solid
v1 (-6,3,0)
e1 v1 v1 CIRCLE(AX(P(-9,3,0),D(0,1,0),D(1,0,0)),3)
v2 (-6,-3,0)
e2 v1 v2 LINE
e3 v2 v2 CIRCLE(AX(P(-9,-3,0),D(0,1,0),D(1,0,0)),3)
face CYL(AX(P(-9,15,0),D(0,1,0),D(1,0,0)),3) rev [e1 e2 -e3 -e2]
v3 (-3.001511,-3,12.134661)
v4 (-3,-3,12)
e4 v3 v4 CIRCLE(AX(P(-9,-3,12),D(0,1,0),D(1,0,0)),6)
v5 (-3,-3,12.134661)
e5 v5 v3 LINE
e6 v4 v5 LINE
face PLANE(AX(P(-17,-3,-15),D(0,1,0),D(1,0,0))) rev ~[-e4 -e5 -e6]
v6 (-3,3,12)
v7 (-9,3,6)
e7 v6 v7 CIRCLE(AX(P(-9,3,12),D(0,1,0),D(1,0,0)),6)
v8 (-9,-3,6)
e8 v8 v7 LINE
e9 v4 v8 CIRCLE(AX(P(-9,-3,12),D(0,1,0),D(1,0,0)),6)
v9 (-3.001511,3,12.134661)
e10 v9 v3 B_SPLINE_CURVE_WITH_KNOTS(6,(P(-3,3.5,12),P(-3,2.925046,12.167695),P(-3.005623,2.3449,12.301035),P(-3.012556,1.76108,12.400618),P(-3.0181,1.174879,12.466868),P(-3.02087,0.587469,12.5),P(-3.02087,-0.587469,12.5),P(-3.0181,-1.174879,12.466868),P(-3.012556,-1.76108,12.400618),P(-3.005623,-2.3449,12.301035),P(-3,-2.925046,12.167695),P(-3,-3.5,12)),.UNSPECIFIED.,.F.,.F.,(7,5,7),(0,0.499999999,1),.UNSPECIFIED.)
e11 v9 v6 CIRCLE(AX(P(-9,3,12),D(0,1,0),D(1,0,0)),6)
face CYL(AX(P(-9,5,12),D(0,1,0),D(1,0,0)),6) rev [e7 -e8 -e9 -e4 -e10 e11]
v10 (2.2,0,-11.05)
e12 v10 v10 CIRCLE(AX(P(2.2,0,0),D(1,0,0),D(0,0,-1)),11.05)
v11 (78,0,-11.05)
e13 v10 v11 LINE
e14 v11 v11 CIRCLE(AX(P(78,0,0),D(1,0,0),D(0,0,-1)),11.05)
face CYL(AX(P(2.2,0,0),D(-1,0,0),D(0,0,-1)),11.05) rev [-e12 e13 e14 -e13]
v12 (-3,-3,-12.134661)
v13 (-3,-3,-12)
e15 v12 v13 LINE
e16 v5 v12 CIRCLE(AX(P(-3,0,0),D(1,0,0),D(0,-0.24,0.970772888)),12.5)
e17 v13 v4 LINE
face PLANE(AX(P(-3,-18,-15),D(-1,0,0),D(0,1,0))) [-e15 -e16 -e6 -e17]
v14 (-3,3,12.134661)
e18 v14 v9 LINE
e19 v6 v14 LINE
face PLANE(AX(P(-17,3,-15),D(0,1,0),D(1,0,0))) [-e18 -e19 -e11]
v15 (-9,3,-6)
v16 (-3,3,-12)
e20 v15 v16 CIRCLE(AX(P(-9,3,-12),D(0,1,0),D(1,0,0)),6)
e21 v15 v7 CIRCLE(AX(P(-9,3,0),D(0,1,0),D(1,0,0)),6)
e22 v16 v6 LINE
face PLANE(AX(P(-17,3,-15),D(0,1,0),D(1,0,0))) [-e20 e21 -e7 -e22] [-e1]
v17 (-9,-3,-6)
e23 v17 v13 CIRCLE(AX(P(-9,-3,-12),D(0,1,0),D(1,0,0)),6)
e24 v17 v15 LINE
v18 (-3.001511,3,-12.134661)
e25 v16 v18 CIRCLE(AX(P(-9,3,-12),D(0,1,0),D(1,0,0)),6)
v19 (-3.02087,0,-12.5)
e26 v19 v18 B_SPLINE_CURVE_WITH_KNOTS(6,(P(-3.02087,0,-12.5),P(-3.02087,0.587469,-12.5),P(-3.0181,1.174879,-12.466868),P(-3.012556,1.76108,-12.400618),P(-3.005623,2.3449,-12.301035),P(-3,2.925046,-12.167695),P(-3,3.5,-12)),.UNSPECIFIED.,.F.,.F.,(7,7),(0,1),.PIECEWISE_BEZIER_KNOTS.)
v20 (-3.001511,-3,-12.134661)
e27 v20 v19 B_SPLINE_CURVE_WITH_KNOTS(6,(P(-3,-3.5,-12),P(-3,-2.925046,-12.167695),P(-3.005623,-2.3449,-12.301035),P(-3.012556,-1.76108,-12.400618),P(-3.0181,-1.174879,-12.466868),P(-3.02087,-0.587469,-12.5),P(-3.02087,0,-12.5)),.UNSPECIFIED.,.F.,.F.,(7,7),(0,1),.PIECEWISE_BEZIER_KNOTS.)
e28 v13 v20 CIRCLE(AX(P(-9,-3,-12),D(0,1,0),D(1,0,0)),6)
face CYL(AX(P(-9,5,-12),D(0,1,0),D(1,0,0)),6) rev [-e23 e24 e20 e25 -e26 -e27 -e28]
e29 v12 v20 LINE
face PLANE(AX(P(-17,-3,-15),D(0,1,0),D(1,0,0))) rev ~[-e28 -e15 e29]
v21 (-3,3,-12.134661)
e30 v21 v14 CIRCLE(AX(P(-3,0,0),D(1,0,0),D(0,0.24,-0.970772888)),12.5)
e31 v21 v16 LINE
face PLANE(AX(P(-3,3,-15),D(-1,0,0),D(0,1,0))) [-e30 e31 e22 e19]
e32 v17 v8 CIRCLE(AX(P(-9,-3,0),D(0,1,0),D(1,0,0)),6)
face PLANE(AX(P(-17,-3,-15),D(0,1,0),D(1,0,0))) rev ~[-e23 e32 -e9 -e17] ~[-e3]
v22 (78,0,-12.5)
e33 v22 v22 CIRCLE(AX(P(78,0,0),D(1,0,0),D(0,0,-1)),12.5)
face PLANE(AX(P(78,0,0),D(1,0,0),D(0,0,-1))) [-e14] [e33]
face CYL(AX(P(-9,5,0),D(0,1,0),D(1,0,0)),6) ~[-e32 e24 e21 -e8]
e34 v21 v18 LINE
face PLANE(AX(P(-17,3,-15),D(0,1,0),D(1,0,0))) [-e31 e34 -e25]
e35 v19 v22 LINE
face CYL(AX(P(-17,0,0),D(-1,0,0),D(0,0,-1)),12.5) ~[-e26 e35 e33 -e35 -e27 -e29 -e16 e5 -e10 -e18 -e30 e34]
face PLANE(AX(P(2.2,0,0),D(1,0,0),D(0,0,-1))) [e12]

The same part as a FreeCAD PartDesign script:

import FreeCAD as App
import Part
import Sketcher
from FreeCAD import Vector

doc = App.newDocument("Part")
body = doc.addObject("PartDesign::Body", "Body")

# Sketch on XY plane
sketch1 = doc.addObject("Sketcher::SketchObject", "Sketch")
body.addObject(sketch1)
sketch1.AttachmentSupport = (doc.XY_Plane, [""])
sketch1.MapMode = "FlatFace"
sketch1.addGeometry(Part.Circle(Vector(0, 0, 0), Vector(0, 0, 1), 6), False)
sketch1.addConstraint([
    Sketcher.Constraint("Coincident", 0, 3, -1, 1),
    Sketcher.Constraint("Diameter", 0, 12.0),
])
pad1 = doc.addObject("PartDesign::Pad", "Pad")
body.addObject(pad1)
pad1.Profile = sketch1
pad1.Length = 10
body2 = doc.addObject("PartDesign::Body", "Body001")
doc.recompute()

body.Placement = App.Placement(Vector(0, 0, 0), App.Rotation(Vector(1, 0, 0), 90))
boolean = doc.addObject("PartDesign::Boolean", "Boolean")
body2.addObject(boolean)
boolean.Type = "Fuse"
boolean.addObjects([body])
body3 = doc.addObject("PartDesign::Body", "Body002")
doc.recompute()

body2.Placement = App.Placement(Vector(-9, 5, -12), App.Rotation(Vector(0, 0, 1), 0))
boolean2 = doc.addObject("PartDesign::Boolean", "Boolean001")
body3.addObject(boolean2)
boolean2.Type = "Fuse"
boolean2.addObjects([body2])
body4 = doc.addObject("PartDesign::Body", "Body003")

# Sketch on XY plane
sketch2 = doc.addObject("Sketcher::SketchObject", "Sketch001")
body4.addObject(sketch2)
sketch2.AttachmentSupport = (doc.getObject("XY_Plane003"), [""])
sketch2.MapMode = "FlatFace"
sketch2.addGeometry(Part.Circle(Vector(0, 0, 0), Vector(0, 0, 1), 6), False)
sketch2.addConstraint([
    Sketcher.Constraint("Coincident", 0, 3, -1, 1),
    Sketcher.Constraint("Diameter", 0, 12.0),
])
pad2 = doc.addObject("PartDesign::Pad", "Pad001")
body4.addObject(pad2)
pad2.Profile = sketch2
pad2.Length = 10
body5 = doc.addObject("PartDesign::Body", "Body004")
doc.recompute()

body4.Placement = App.Placement(Vector(0, 0, 0), App.Rotation(Vector(1, 0, 0), 90))
boolean3 = doc.addObject("PartDesign::Boolean", "Boolean002")
body5.addObject(boolean3)
boolean3.Type = "Fuse"
boolean3.addObjects([body4])
body6 = doc.addObject("PartDesign::Body", "Body005")
doc.recompute()

body5.Placement = App.Placement(Vector(-9, 5, 0), App.Rotation(Vector(0, 0, 1), 0))
boolean4 = doc.addObject("PartDesign::Boolean", "Boolean003")
body6.addObject(boolean4)
boolean4.Type = "Fuse"
boolean4.addObjects([body5])
body7 = doc.addObject("PartDesign::Body", "Body006")

# Sketch on XY plane
sketch3 = doc.addObject("Sketcher::SketchObject", "Sketch002")
body7.addObject(sketch3)
sketch3.AttachmentSupport = (doc.getObject("XY_Plane006"), [""])
sketch3.MapMode = "FlatFace"
sketch3.AttachmentOffset = App.Placement(Vector(0, 0, -19), App.Rotation())
sketch3.addGeometry([
    Part.LineSegment(Vector(-9, 5, 0), Vector(-9, -5, 0)),
    Part.LineSegment(Vector(-9, -5, 0), Vector(-3, -5, 0)),
    Part.LineSegment(Vector(-3, -5, 0), Vector(-3, 5, 0)),
    Part.LineSegment(Vector(-3, 5, 0), Vector(-9, 5, 0)),
], False)
sketch3.addConstraint([
    Sketcher.Constraint("Coincident", 0, 2, 1, 1),
    Sketcher.Constraint("Coincident", 1, 2, 2, 1),
    Sketcher.Constraint("Coincident", 2, 2, 3, 1),
    Sketcher.Constraint("Coincident", 3, 2, 0, 1),
    Sketcher.Constraint("Vertical", 0),
    Sketcher.Constraint("Horizontal", 1),
    Sketcher.Constraint("Vertical", 2),
    Sketcher.Constraint("Horizontal", 3),
    Sketcher.Constraint("DistanceX", 1, 1, 1, 2, 6.0),
    Sketcher.Constraint("DistanceY", 0, 2, 0, 1, 10.0),
    Sketcher.Constraint("DistanceX", 0, 2, -1, 1, 9.0),
    Sketcher.Constraint("DistanceY", 0, 2, -1, 1, 5.0),
])
pad3 = doc.addObject("PartDesign::Pad", "Pad002")
body7.addObject(pad3)
pad3.Profile = sketch3
pad3.Length = 38
body8 = doc.addObject("PartDesign::Body", "Body007")

# Sketch on XY plane
sketch4 = doc.addObject("Sketcher::SketchObject", "Sketch003")
body8.addObject(sketch4)
sketch4.AttachmentSupport = (doc.getObject("XY_Plane007"), [""])
sketch4.MapMode = "FlatFace"
sketch4.AttachmentOffset = App.Placement(Vector(0, 0, -19), App.Rotation())
sketch4.addGeometry([
    Part.LineSegment(Vector(-17, 5, 0), Vector(-17, -5, 0)),
    Part.LineSegment(Vector(-17, -5, 0), Vector(-3, -5, 0)),
    Part.LineSegment(Vector(-3, -5, 0), Vector(-3, 5, 0)),
    Part.LineSegment(Vector(-3, 5, 0), Vector(-17, 5, 0)),
], False)
sketch4.addConstraint([
    Sketcher.Constraint("Coincident", 0, 2, 1, 1),
    Sketcher.Constraint("Coincident", 1, 2, 2, 1),
    Sketcher.Constraint("Coincident", 2, 2, 3, 1),
    Sketcher.Constraint("Coincident", 3, 2, 0, 1),
    Sketcher.Constraint("Vertical", 0),
    Sketcher.Constraint("Horizontal", 1),
    Sketcher.Constraint("Vertical", 2),
    Sketcher.Constraint("Horizontal", 3),
    Sketcher.Constraint("DistanceX", 1, 1, 1, 2, 14.0),
    Sketcher.Constraint("DistanceY", 0, 2, 0, 1, 10.0),
    Sketcher.Constraint("DistanceX", 0, 2, -1, 1, 17.0),
    Sketcher.Constraint("DistanceY", 0, 2, -1, 1, 5.0),
])
pad4 = doc.addObject("PartDesign::Pad", "Pad003")
body8.addObject(pad4)
pad4.Profile = sketch4
pad4.Length = 38
doc.recompute()

boolean5 = doc.addObject("PartDesign::Boolean", "Boolean004")
body8.addObject(boolean5)
boolean5.Type = "Cut"
boolean5.addObjects([body7])
doc.recompute()

boolean6 = doc.addObject("PartDesign::Boolean", "Boolean005")
body8.addObject(boolean6)
boolean6.Type = "Cut"
boolean6.addObjects([body6])
body9 = doc.addObject("PartDesign::Body", "Body008")

# Sketch on XY plane
sketch5 = doc.addObject("Sketcher::SketchObject", "Sketch004")
body9.addObject(sketch5)
sketch5.AttachmentSupport = (doc.getObject("XY_Plane008"), [""])
sketch5.MapMode = "FlatFace"
sketch5.addGeometry(Part.Circle(Vector(0, 0, 0), Vector(0, 0, 1), 6), False)
sketch5.addConstraint([
    Sketcher.Constraint("Coincident", 0, 3, -1, 1),
    Sketcher.Constraint("Diameter", 0, 12.0),
])
pad5 = doc.addObject("PartDesign::Pad", "Pad004")
body9.addObject(pad5)
pad5.Profile = sketch5
pad5.Length = 10
body10 = doc.addObject("PartDesign::Body", "Body009")
doc.recompute()

body9.Placement = App.Placement(Vector(0, 0, 0), App.Rotation(Vector(1, 0, 0), 90))
boolean7 = doc.addObject("PartDesign::Boolean", "Boolean006")
body10.addObject(boolean7)
boolean7.Type = "Fuse"
boolean7.addObjects([body9])
body11 = doc.addObject("PartDesign::Body", "Body010")
body11.AllowCompound = True
doc.recompute()

body10.Placement = App.Placement(Vector(-9, 5, 12), App.Rotation(Vector(0, 0, 1), 0))
boolean8 = doc.addObject("PartDesign::Boolean", "Boolean007")
body11.addObject(boolean8)
boolean8.Type = "Fuse"
boolean8.addObjects([body10])
doc.recompute()

boolean9 = doc.addObject("PartDesign::Boolean", "Boolean008")
body11.addObject(boolean9)
boolean9.Type = "Fuse"
boolean9.addObjects([body3])
doc.recompute()

boolean10 = doc.addObject("PartDesign::Boolean", "Boolean009")
body11.addObject(boolean10)
boolean10.Type = "Fuse"
boolean10.addObjects([body8])
body12 = doc.addObject("PartDesign::Body", "Body011")

# Sketch on XY plane
sketch6 = doc.addObject("Sketcher::SketchObject", "Sketch005")
body12.addObject(sketch6)
sketch6.AttachmentSupport = (doc.getObject("XY_Plane011"), [""])
sketch6.MapMode = "FlatFace"
sketch6.addGeometry(Part.Circle(Vector(0, 0, 0), Vector(0, 0, 1), 11), False)
sketch6.addConstraint([
    Sketcher.Constraint("Coincident", 0, 3, -1, 1),
    Sketcher.Constraint("Diameter", 0, 22.1),
])
pad6 = doc.addObject("PartDesign::Pad", "Pad005")
body12.addObject(pad6)
pad6.Profile = sketch6
pad6.Length = 75.8
body13 = doc.addObject("PartDesign::Body", "Body012")
doc.recompute()

body12.Placement = App.Placement(Vector(0, 0, 0), App.Rotation(Vector(0, 1, 0), 90))
boolean11 = doc.addObject("PartDesign::Boolean", "Boolean010")
body13.addObject(boolean11)
boolean11.Type = "Fuse"
boolean11.addObjects([body12])
body14 = doc.addObject("PartDesign::Body", "Body013")
doc.recompute()

body13.Placement = App.Placement(Vector(2.2, 0, 0), App.Rotation(Vector(0, 0, 1), 0))
boolean12 = doc.addObject("PartDesign::Boolean", "Boolean011")
body14.addObject(boolean12)
boolean12.Type = "Fuse"
boolean12.addObjects([body13])
body15 = doc.addObject("PartDesign::Body", "Body014")

# Sketch on XY plane
sketch7 = doc.addObject("Sketcher::SketchObject", "Sketch006")
body15.addObject(sketch7)
sketch7.AttachmentSupport = (doc.getObject("XY_Plane014"), [""])
sketch7.MapMode = "FlatFace"
sketch7.addGeometry(Part.Circle(Vector(0, 0, 0), Vector(0, 0, 1), 3), False)
sketch7.addConstraint([
    Sketcher.Constraint("Coincident", 0, 3, -1, 1),
    Sketcher.Constraint("Diameter", 0, 6.0),
])
pad7 = doc.addObject("PartDesign::Pad", "Pad006")
body15.addObject(pad7)
pad7.Profile = sketch7
pad7.Length = 30
body16 = doc.addObject("PartDesign::Body", "Body015")
doc.recompute()

body15.Placement = App.Placement(Vector(0, 0, 0), App.Rotation(Vector(1, 0, 0), 90))
boolean13 = doc.addObject("PartDesign::Boolean", "Boolean012")
body16.addObject(boolean13)
boolean13.Type = "Fuse"
boolean13.addObjects([body15])
body17 = doc.addObject("PartDesign::Body", "Body016")
doc.recompute()

body16.Placement = App.Placement(Vector(-9, 15, 0), App.Rotation(Vector(0, 0, 1), 0))
boolean14 = doc.addObject("PartDesign::Boolean", "Boolean013")
body17.addObject(boolean14)
boolean14.Type = "Fuse"
boolean14.addObjects([body16])
body18 = doc.addObject("PartDesign::Body", "Body017")

# Sketch on XY plane
sketch8 = doc.addObject("Sketcher::SketchObject", "Sketch007")
body18.addObject(sketch8)
sketch8.AttachmentSupport = (doc.getObject("XY_Plane017"), [""])
sketch8.MapMode = "FlatFace"
sketch8.AttachmentOffset = App.Placement(Vector(0, 0, -15), App.Rotation())
sketch8.addGeometry([
    Part.LineSegment(Vector(-17, -3, 0), Vector(-17, -18, 0)),
    Part.LineSegment(Vector(-17, -18, 0), Vector(-3, -18, 0)),
    Part.LineSegment(Vector(-3, -18, 0), Vector(-3, -3, 0)),
    Part.LineSegment(Vector(-3, -3, 0), Vector(-17, -3, 0)),
], False)
sketch8.addConstraint([
    Sketcher.Constraint("Coincident", 0, 2, 1, 1),
    Sketcher.Constraint("Coincident", 1, 2, 2, 1),
    Sketcher.Constraint("Coincident", 2, 2, 3, 1),
    Sketcher.Constraint("Coincident", 3, 2, 0, 1),
    Sketcher.Constraint("Vertical", 0),
    Sketcher.Constraint("Horizontal", 1),
    Sketcher.Constraint("Vertical", 2),
    Sketcher.Constraint("Horizontal", 3),
    Sketcher.Constraint("DistanceX", 1, 1, 1, 2, 14.0),
    Sketcher.Constraint("DistanceY", 0, 2, 0, 1, 15.0),
    Sketcher.Constraint("DistanceX", 0, 2, -1, 1, 17.0),
    Sketcher.Constraint("DistanceY", 0, 2, -1, 1, 18.0),
])
pad8 = doc.addObject("PartDesign::Pad", "Pad007")
body18.addObject(pad8)
pad8.Profile = sketch8
pad8.Length = 30
body19 = doc.addObject("PartDesign::Body", "Body018")

# Sketch on XY plane
sketch9 = doc.addObject("Sketcher::SketchObject", "Sketch008")
body19.addObject(sketch9)
sketch9.AttachmentSupport = (doc.getObject("XY_Plane018"), [""])
sketch9.MapMode = "FlatFace"
sketch9.AttachmentOffset = App.Placement(Vector(0, 0, -15), App.Rotation())
sketch9.addGeometry([
    Part.LineSegment(Vector(-17, 18, 0), Vector(-17, 3, 0)),
    Part.LineSegment(Vector(-17, 3, 0), Vector(-3, 3, 0)),
    Part.LineSegment(Vector(-3, 3, 0), Vector(-3, 18, 0)),
    Part.LineSegment(Vector(-3, 18, 0), Vector(-17, 18, 0)),
], False)
sketch9.addConstraint([
    Sketcher.Constraint("Coincident", 0, 2, 1, 1),
    Sketcher.Constraint("Coincident", 1, 2, 2, 1),
    Sketcher.Constraint("Coincident", 2, 2, 3, 1),
    Sketcher.Constraint("Coincident", 3, 2, 0, 1),
    Sketcher.Constraint("Vertical", 0),
    Sketcher.Constraint("Horizontal", 1),
    Sketcher.Constraint("Vertical", 2),
    Sketcher.Constraint("Horizontal", 3),
    Sketcher.Constraint("DistanceX", 1, 1, 1, 2, 14.0),
    Sketcher.Constraint("DistanceY", 0, 2, 0, 1, 15.0),
    Sketcher.Constraint("DistanceX", 0, 2, -1, 1, 17.0),
    Sketcher.Constraint("DistanceY", -1, 1, 0, 2, 3.0),
])
pad9 = doc.addObject("PartDesign::Pad", "Pad008")
body19.addObject(pad9)
pad9.Profile = sketch9
pad9.Length = 30
body20 = doc.addObject("PartDesign::Body", "Body019")

# Sketch on XY plane
sketch10 = doc.addObject("Sketcher::SketchObject", "Sketch009")
body20.addObject(sketch10)
sketch10.AttachmentSupport = (doc.getObject("XY_Plane019"), [""])
sketch10.MapMode = "FlatFace"
sketch10.addGeometry(Part.Circle(Vector(0, 0, 0), Vector(0, 0, 1), 12), False)
sketch10.addConstraint([
    Sketcher.Constraint("Coincident", 0, 3, -1, 1),
    Sketcher.Constraint("Diameter", 0, 25.0),
])
pad10 = doc.addObject("PartDesign::Pad", "Pad009")
body20.addObject(pad10)
pad10.Profile = sketch10
pad10.Length = 95
body21 = doc.addObject("PartDesign::Body", "Body020")
doc.recompute()

body20.Placement = App.Placement(Vector(0, 0, 0), App.Rotation(Vector(0, 1, 0), 90))
boolean15 = doc.addObject("PartDesign::Boolean", "Boolean014")
body21.addObject(boolean15)
boolean15.Type = "Fuse"
boolean15.addObjects([body20])
body22 = doc.addObject("PartDesign::Body", "Body021")
doc.recompute()

body21.Placement = App.Placement(Vector(-17, 0, 0), App.Rotation(Vector(0, 0, 1), 0))
boolean16 = doc.addObject("PartDesign::Boolean", "Boolean015")
body22.addObject(boolean16)
boolean16.Type = "Fuse"
boolean16.addObjects([body21])
doc.recompute()

boolean17 = doc.addObject("PartDesign::Boolean", "Boolean016")
body22.addObject(boolean17)
boolean17.Type = "Cut"
boolean17.addObjects([body19])
doc.recompute()

boolean18 = doc.addObject("PartDesign::Boolean", "Boolean017")
body22.addObject(boolean18)
boolean18.Type = "Cut"
boolean18.addObjects([body18])
doc.recompute()

boolean19 = doc.addObject("PartDesign::Boolean", "Boolean018")
body22.addObject(boolean19)
boolean19.Type = "Cut"
boolean19.addObjects([body17])
doc.recompute()

boolean20 = doc.addObject("PartDesign::Boolean", "Boolean019")
body22.addObject(boolean20)
boolean20.Type = "Cut"
boolean20.addObjects([body14])
doc.recompute()

boolean21 = doc.addObject("PartDesign::Boolean", "Boolean020")
body22.addObject(boolean21)
boolean21.Type = "Cut"
boolean21.addObjects([body11])

doc.recompute()
